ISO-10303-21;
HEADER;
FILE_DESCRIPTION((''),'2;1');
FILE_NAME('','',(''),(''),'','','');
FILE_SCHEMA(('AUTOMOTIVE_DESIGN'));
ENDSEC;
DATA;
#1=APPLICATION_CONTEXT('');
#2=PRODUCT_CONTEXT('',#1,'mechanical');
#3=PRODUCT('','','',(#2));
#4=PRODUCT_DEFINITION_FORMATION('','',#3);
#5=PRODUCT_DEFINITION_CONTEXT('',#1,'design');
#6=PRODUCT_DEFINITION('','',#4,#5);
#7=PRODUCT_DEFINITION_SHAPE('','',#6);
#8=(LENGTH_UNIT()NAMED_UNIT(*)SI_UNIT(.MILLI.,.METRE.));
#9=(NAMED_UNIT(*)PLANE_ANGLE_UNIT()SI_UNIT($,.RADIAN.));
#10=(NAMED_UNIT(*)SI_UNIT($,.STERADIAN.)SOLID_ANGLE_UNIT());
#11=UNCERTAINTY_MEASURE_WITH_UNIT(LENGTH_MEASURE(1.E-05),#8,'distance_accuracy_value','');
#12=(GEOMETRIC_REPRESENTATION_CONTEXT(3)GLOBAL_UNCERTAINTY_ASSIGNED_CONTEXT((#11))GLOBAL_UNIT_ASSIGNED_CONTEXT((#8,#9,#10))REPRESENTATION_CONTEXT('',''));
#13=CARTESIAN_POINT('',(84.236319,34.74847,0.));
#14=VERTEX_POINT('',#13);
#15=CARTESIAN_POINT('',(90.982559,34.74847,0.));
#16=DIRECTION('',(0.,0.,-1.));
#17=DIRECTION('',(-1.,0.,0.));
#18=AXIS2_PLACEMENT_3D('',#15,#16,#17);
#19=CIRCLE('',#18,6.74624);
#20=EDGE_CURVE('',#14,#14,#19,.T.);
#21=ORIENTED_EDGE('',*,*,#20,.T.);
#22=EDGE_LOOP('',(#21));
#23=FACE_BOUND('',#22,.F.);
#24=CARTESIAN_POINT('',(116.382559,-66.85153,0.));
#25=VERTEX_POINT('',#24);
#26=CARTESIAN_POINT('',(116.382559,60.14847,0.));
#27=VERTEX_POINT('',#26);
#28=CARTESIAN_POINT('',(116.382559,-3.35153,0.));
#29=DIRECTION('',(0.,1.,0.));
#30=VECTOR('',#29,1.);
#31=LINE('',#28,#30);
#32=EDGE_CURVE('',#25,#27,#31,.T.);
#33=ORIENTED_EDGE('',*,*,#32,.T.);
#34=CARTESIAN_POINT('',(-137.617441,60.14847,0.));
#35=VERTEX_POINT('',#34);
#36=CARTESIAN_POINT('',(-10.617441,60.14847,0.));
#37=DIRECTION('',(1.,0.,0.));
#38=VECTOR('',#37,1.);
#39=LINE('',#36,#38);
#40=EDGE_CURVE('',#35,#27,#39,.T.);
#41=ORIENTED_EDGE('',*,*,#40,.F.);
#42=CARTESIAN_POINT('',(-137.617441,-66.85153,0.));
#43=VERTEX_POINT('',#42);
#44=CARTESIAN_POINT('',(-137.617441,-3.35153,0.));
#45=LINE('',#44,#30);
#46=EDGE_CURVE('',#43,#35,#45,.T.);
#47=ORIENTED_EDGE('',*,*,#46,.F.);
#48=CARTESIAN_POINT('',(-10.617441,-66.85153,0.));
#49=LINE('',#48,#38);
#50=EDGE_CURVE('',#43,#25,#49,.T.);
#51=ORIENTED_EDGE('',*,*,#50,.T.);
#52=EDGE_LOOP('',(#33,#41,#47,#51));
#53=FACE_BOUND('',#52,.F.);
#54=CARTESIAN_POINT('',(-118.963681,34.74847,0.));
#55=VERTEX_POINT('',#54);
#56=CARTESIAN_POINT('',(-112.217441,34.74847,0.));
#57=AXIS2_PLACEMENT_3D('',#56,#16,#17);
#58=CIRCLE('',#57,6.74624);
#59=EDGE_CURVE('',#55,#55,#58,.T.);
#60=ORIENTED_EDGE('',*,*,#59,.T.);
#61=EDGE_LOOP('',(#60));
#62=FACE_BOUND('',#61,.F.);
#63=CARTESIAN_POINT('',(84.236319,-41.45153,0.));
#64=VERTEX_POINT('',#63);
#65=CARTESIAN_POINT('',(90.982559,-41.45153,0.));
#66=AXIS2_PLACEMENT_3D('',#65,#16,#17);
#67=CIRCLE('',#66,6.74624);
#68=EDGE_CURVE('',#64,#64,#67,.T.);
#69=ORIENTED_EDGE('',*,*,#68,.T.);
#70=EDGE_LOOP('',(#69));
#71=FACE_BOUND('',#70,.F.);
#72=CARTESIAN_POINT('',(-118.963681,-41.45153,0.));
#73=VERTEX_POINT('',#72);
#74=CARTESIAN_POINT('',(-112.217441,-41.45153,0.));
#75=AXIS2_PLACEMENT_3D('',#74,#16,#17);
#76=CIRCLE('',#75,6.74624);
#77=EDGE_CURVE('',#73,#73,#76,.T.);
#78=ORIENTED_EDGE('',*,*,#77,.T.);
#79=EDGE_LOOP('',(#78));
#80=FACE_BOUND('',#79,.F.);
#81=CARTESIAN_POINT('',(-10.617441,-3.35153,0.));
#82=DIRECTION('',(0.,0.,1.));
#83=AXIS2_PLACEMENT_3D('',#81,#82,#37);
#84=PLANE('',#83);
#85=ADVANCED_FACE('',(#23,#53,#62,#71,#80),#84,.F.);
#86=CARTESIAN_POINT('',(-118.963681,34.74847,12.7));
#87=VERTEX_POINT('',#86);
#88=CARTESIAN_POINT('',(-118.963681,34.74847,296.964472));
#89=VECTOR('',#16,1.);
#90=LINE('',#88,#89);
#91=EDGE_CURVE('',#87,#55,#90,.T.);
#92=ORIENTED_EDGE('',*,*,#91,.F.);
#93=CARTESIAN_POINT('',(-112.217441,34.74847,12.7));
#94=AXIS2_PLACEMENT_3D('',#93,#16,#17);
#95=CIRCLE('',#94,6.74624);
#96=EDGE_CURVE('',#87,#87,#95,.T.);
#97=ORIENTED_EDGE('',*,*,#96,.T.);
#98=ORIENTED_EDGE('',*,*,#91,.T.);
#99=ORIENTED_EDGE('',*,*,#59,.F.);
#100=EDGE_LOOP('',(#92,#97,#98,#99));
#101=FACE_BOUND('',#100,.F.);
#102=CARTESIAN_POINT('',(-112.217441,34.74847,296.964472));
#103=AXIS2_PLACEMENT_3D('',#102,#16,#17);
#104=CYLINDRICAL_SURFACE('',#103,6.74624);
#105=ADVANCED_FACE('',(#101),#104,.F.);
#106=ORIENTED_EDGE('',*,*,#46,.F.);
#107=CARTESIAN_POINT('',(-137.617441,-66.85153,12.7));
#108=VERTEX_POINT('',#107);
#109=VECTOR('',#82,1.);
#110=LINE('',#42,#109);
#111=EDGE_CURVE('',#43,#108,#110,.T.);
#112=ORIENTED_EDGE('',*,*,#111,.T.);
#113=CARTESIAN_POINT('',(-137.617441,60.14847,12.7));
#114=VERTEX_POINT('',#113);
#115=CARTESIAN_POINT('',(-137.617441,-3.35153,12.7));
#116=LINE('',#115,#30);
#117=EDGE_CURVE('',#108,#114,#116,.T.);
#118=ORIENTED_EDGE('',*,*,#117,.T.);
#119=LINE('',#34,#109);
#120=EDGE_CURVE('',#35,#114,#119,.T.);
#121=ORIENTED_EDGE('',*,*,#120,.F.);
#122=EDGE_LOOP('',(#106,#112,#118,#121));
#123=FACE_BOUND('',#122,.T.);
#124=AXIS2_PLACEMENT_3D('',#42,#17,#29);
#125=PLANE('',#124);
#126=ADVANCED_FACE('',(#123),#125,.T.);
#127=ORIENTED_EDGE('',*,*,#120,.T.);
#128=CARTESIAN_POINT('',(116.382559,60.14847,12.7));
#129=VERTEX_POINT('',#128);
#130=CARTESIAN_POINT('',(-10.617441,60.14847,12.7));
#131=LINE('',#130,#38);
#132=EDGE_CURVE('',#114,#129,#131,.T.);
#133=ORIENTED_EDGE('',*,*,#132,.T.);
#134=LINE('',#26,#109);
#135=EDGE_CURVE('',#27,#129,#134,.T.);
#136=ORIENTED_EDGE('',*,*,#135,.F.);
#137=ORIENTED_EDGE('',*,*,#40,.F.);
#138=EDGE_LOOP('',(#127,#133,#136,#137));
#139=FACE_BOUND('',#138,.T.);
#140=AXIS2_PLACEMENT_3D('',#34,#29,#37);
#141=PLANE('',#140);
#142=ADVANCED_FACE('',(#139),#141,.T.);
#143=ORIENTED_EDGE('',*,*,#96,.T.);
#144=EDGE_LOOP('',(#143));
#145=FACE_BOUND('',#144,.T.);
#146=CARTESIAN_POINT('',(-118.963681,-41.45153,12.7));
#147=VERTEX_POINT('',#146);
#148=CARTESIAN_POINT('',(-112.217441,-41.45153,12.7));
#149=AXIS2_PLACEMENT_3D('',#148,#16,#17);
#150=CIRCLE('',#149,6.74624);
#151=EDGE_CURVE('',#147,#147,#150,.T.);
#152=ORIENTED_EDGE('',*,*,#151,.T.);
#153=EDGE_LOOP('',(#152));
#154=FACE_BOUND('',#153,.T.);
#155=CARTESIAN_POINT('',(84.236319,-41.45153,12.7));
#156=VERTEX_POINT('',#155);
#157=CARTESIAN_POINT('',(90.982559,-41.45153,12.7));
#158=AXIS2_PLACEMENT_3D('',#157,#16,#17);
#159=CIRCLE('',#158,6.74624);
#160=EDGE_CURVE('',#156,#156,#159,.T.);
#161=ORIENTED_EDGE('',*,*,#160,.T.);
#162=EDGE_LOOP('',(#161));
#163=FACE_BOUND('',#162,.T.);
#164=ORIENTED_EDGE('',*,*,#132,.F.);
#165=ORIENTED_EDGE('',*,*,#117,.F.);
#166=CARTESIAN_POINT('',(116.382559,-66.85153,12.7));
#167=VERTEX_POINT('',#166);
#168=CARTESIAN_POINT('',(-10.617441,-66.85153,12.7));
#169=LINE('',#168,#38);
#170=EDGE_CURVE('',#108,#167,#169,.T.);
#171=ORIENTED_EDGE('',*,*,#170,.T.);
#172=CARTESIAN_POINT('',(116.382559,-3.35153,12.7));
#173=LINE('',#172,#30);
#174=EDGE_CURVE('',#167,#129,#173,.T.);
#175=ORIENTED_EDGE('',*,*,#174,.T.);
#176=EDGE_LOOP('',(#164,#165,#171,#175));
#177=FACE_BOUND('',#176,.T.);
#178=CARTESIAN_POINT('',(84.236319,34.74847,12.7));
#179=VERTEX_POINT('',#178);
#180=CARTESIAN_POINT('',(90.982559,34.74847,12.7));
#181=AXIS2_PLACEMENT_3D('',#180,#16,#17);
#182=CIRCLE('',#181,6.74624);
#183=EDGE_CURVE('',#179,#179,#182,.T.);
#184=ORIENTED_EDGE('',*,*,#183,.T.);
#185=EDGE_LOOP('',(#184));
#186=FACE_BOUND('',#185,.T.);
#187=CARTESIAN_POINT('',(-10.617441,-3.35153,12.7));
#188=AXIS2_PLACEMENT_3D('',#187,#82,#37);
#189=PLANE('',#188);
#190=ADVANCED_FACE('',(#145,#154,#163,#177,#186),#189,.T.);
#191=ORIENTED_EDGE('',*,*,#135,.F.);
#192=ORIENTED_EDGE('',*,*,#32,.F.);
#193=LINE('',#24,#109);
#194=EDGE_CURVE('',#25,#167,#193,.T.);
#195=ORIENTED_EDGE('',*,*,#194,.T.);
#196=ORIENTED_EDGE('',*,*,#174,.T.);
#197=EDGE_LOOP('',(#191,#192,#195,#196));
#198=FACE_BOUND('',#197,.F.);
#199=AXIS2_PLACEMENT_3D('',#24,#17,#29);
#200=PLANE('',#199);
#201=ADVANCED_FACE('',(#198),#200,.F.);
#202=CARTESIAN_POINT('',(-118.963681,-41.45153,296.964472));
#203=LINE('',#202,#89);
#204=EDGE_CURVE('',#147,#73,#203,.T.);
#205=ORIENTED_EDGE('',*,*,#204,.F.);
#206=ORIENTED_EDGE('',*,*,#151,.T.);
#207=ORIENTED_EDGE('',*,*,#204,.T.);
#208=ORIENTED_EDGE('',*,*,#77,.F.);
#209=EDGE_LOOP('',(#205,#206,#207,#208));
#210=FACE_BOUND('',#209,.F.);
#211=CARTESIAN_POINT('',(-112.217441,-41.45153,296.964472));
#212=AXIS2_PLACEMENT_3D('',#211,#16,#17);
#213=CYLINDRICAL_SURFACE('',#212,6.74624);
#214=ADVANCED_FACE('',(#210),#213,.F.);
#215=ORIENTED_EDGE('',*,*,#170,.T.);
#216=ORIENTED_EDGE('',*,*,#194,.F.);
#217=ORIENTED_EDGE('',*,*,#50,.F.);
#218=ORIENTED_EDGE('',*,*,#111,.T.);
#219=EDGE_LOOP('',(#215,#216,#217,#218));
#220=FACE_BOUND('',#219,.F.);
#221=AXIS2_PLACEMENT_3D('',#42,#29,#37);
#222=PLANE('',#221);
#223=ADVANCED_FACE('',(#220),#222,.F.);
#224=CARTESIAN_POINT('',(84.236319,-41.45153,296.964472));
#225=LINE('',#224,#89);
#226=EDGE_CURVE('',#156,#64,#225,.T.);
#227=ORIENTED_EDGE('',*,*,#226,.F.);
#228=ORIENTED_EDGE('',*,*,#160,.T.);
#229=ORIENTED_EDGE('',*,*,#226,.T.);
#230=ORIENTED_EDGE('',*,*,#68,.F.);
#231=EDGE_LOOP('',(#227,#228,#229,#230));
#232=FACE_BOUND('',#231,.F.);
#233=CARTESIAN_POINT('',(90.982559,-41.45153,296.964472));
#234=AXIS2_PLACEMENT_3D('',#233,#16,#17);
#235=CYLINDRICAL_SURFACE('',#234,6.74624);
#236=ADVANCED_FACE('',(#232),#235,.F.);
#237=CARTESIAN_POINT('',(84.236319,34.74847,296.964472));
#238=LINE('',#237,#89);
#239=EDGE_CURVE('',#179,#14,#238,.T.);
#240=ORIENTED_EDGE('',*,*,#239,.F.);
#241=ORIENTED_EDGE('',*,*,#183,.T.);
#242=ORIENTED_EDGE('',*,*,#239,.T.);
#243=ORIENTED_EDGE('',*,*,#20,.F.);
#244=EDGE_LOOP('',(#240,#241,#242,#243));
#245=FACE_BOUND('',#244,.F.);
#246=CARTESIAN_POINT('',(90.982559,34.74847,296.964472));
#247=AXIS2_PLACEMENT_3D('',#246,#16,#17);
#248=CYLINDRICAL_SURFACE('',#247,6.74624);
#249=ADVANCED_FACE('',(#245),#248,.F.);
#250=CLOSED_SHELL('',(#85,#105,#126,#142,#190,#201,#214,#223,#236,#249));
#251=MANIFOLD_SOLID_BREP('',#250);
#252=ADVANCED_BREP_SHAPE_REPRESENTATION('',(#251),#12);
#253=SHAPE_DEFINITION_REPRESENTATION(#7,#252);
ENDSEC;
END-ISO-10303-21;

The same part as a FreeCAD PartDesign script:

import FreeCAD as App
import Part
import Sketcher

V = App.Vector
Q = App.Units.Quantity


def add_polygon(sketch, points):
    """Adds a closed chain of lines whose ends are joined by coincident constraints."""
    first, n = sketch.GeometryCount, len(points)
    for a, b in zip(points, points[1:] + points[:1]):
        sketch.addGeometry(Part.LineSegment(App.Vector(*a, 0), App.Vector(*b, 0)), False)
    for i in range(n):
        sketch.addConstraint(Sketcher.Constraint("Coincident", first + i, 2, first + (i + 1) % n, 1))

doc = App.newDocument("Part")
params = doc.addObject("Spreadsheet::Sheet", "Params")
for row, (alias, value) in enumerate([
    ("sketch1_width", "10 in"),
    ("sketch1_height", "5 in"),
    ("pad1_length", "0.5 in"),
    ("hole_diameter", "0.5312 in"),
], start=1):
    params.set(f"A{row}", alias)
    params.set(f"B{row}", "=" + value)
    params.setAlias(f"B{row}", alias)

body = doc.addObject("PartDesign::Body", "Body")

# Sketch on XY plane
sketch1 = body.newObject("Sketcher::SketchObject", "Sketch")
sketch1.AttachmentSupport = (doc.getObject("XY_Plane"), [""])
sketch1.MapMode = "FlatFace"
add_polygon(sketch1, [(-138, 60), (-138, -67), (116, -67), (116, 60)])  # lines 0-3
sketch1.addConstraint([
    Sketcher.Constraint("Vertical", 0),
    Sketcher.Constraint("Horizontal", 1),
    Sketcher.Constraint("Vertical", 2),
    Sketcher.Constraint("Horizontal", 3),
    Sketcher.Constraint("DistanceX", 1, 1, 1, 2, Q("10 in")),
    Sketcher.Constraint("DistanceY", 0, 2, 0, 1, Q("5 in")),
    Sketcher.Constraint("DistanceX", 0, 2, -1, 1, 137.617441),
    Sketcher.Constraint("DistanceY", 0, 2, -1, 1, 66.85153),
])
sketch1.setExpression("Constraints[8]", "Params.sketch1_width")
sketch1.setExpression("Constraints[9]", "Params.sketch1_height")
pad1 = body.newObject("PartDesign::Pad", "Pad")
pad1.Profile = sketch1
pad1.setExpression("Length", "Params.pad1_length")

# Sketch on XY plane
sketch2 = body.newObject("Sketcher::SketchObject", "Sketch001")
sketch2.AttachmentSupport = (doc.getObject("XY_Plane"), [""])
sketch2.MapMode = "FlatFace"
sketch2.AttachmentOffset = App.Placement(V(0, 0, 0.5 * 25.4), App.Rotation())
sketch2.addGeometry([
    Part.Circle(V(-112, 35, 0), V(0, 0, 1), 7),
    Part.Circle(V(-112, -41, 0), V(0, 0, 1), 7),
    Part.Circle(V(91, 35, 0), V(0, 0, 1), 7),
    Part.Circle(V(91, -41, 0), V(0, 0, 1), 7),
], False)
sketch2.addConstraint([
    Sketcher.Constraint("Equal", 0, 1),
    Sketcher.Constraint("Equal", 1, 2),
    Sketcher.Constraint("Equal", 2, 3),
    Sketcher.Constraint("Horizontal", 0, 3, 2, 3),
    Sketcher.Constraint("Horizontal", 1, 3, 3, 3),
    Sketcher.Constraint("Vertical", 0, 3, 1, 3),
    Sketcher.Constraint("Vertical", 2, 3, 3, 3),
    Sketcher.Constraint("DistanceY", 1, 3, 0, 3, Q("3 in")),
    Sketcher.Constraint("DistanceX", 0, 3, 2, 3, Q("8 in")),
    Sketcher.Constraint("Diameter", 0, Q("0.5312 in")),
    Sketcher.Constraint("DistanceX", 0, 3, -1, 1, 112.217441),
    Sketcher.Constraint("DistanceY", -1, 1, 0, 3, 34.74847),
])
doc.recompute()
hole = body.newObject("PartDesign::Hole", "Hole")
hole.Profile = sketch2
hole.ThreadType = "None"
hole.setExpression("Diameter", "Params.hole_diameter")
hole.DepthType = "ThroughAll"

doc.recompute()
